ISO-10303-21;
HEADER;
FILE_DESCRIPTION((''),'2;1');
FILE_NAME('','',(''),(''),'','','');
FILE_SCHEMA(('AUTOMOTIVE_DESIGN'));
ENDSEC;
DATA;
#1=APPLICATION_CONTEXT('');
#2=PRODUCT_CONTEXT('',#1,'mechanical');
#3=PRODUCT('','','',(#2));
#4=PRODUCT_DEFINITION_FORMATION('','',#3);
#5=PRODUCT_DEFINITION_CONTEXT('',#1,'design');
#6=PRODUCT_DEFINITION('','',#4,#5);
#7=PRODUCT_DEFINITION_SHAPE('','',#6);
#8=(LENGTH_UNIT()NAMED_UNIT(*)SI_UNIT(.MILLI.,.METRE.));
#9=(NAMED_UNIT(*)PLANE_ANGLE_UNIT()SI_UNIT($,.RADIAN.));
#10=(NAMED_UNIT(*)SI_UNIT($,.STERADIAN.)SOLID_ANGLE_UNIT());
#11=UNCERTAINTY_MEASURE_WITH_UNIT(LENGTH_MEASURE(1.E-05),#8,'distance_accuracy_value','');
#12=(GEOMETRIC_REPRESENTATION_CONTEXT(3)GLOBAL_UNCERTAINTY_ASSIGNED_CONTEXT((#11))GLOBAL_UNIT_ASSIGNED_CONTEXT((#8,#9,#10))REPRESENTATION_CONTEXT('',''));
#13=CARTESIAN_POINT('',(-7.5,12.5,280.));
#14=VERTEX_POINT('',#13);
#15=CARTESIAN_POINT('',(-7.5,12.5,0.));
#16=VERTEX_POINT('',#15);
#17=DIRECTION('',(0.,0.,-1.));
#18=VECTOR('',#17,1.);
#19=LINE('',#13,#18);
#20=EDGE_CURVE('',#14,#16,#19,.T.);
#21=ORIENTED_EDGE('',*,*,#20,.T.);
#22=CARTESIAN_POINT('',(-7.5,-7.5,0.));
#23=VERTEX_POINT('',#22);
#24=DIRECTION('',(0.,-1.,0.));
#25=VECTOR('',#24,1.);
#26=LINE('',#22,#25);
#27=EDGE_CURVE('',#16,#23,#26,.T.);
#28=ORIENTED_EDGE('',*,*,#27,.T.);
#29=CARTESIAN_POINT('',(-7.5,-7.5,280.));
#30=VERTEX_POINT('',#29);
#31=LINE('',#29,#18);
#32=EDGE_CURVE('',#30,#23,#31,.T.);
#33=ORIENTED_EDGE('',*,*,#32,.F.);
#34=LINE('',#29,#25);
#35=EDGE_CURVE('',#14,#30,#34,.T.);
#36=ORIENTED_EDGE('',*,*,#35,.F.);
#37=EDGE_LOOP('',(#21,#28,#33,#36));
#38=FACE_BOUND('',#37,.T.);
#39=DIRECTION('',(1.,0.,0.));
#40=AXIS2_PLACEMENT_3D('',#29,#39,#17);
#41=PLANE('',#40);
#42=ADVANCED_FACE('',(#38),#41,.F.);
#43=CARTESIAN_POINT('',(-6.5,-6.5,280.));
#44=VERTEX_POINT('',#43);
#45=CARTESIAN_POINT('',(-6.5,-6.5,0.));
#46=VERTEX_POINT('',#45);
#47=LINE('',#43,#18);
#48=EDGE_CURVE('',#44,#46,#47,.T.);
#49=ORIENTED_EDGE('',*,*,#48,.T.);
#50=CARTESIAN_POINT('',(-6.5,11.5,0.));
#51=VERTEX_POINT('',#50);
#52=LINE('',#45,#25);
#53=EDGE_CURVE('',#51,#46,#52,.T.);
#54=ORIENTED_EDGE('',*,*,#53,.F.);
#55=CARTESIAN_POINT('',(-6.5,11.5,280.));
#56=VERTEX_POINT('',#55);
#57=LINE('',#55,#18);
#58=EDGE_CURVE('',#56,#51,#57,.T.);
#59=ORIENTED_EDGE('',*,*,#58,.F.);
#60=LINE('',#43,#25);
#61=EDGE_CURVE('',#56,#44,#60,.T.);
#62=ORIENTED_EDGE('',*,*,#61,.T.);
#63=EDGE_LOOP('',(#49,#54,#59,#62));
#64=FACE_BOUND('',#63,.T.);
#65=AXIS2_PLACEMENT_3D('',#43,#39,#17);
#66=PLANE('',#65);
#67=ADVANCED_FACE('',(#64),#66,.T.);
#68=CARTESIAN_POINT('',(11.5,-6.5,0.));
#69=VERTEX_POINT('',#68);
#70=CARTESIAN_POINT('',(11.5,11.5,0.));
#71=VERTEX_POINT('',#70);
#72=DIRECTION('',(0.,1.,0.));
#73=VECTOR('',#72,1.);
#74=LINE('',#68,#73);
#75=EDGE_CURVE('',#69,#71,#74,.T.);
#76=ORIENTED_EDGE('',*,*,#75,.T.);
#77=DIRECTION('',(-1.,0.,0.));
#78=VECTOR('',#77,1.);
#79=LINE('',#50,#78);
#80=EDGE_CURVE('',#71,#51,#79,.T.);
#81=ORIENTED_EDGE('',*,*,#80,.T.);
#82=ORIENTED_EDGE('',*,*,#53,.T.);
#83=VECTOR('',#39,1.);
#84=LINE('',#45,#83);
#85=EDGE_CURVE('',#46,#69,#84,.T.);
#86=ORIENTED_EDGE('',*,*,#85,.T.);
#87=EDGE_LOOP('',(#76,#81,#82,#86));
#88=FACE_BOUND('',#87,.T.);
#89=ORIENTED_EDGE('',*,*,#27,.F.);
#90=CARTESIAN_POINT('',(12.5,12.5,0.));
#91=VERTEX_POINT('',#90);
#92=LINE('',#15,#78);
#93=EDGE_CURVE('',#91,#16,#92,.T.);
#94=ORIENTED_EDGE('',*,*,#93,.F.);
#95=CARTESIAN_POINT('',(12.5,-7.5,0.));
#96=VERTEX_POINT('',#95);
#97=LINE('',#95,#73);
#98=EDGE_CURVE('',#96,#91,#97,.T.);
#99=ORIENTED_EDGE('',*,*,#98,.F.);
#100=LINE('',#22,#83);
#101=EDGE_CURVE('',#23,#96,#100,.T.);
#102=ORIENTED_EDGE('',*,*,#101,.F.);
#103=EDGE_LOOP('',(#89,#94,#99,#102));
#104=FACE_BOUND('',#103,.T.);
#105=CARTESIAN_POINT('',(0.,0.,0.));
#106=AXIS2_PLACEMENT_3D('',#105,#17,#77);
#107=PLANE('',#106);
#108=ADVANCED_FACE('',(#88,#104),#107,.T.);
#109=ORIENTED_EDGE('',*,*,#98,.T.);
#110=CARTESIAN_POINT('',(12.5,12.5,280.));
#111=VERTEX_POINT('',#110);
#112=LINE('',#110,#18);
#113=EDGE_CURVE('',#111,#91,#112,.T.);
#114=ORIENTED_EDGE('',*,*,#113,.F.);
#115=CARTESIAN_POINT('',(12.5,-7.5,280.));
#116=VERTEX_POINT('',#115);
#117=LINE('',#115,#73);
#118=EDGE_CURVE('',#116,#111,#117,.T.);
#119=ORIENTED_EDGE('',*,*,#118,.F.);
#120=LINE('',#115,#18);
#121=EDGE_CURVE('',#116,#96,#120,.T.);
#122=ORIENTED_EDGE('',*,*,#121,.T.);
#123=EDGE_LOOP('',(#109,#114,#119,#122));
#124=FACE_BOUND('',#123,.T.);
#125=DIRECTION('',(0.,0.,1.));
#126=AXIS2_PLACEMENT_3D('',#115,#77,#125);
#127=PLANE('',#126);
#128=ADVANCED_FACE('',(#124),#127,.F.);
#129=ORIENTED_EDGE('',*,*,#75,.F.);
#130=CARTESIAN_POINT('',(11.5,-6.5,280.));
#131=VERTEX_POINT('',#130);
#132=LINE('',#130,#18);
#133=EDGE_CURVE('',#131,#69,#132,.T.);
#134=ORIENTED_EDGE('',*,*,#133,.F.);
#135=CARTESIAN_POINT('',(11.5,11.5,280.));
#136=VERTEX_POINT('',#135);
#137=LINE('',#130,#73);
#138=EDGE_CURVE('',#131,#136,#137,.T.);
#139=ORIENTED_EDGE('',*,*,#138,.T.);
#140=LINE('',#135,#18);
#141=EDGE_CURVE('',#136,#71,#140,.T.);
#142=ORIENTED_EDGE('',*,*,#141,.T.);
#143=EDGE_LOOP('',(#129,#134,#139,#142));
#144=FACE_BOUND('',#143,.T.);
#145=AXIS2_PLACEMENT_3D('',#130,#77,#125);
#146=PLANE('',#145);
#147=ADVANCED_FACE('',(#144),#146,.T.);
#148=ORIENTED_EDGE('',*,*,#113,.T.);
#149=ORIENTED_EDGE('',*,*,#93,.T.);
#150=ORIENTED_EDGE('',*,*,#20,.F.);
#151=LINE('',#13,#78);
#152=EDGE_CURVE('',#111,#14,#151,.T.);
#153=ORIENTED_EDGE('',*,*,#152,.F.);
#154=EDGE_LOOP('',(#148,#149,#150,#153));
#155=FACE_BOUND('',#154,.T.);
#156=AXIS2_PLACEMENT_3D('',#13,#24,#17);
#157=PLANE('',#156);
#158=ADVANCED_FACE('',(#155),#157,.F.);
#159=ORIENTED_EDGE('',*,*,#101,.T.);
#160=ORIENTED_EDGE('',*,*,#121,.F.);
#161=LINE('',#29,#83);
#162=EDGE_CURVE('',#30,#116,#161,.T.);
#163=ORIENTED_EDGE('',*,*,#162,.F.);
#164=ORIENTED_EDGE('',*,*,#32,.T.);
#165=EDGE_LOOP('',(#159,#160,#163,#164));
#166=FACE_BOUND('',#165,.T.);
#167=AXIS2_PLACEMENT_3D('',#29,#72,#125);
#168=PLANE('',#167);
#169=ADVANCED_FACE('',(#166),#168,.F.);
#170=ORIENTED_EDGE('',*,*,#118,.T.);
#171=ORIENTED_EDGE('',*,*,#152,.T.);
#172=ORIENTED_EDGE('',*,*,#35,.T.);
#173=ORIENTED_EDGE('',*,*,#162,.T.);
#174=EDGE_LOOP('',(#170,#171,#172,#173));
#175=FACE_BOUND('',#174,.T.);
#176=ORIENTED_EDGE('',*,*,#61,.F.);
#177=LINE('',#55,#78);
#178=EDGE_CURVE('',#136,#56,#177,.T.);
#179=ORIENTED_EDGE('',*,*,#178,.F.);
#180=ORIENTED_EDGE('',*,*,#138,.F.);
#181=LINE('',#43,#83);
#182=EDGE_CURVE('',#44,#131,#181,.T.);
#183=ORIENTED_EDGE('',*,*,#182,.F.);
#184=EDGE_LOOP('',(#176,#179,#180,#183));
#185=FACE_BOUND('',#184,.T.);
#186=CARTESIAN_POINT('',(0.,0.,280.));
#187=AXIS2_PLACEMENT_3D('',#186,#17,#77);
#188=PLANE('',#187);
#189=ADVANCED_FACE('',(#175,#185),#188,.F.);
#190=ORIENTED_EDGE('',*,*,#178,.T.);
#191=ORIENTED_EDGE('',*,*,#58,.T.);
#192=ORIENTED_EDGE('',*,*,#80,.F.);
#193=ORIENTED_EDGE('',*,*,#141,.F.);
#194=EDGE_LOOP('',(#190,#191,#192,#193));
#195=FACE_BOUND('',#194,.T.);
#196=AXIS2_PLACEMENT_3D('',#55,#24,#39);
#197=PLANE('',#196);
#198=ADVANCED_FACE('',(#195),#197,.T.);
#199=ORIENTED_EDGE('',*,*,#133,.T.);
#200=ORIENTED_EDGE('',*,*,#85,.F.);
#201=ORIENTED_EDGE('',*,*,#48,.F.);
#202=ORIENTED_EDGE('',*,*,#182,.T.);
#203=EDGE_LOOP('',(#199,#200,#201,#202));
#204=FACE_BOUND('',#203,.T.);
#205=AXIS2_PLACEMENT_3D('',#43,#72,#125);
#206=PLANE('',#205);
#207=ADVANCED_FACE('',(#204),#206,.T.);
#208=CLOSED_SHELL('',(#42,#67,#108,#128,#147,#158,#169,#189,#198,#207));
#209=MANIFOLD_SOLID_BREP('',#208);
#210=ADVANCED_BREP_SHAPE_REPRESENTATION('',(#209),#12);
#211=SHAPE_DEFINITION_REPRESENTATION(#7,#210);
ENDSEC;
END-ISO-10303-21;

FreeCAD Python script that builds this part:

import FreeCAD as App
import Part
import Sketcher
from FreeCAD import Vector
Q = App.Units.Quantity

doc = App.newDocument("Part")
body = doc.addObject("PartDesign::Body", "Body")

# Sketch on XY plane
sketch1 = body.newObject("Sketcher::SketchObject", "Sketch")
sketch1.AttachmentSupport = (doc.getObject("XY_Plane"), [""])
sketch1.MapMode = "FlatFace"
sketch1.addGeometry([
    Part.LineSegment(Vector(-8, 12, 0), Vector(-8, -8, 0)),  # 0
    Part.LineSegment(Vector(-8, -8, 0), Vector(12, -8, 0)),  # 1
    Part.LineSegment(Vector(12, -8, 0), Vector(12, 12, 0)),  # 2
    Part.LineSegment(Vector(12, 12, 0), Vector(-8, 12, 0)),  # 3
    Part.LineSegment(Vector(12, -6, 0), Vector(-6, -6, 0)),  # 4
    Part.LineSegment(Vector(-6, -6, 0), Vector(-6, 12, 0)),  # 5
    Part.LineSegment(Vector(-6, 12, 0), Vector(12, 12, 0)),  # 6
    Part.LineSegment(Vector(12, 12, 0), Vector(12, -6, 0)),  # 7
], False)
sketch1.addConstraint([
    Sketcher.Constraint("Coincident", 0, 2, 1, 1),
    Sketcher.Constraint("Coincident", 1, 2, 2, 1),
    Sketcher.Constraint("Coincident", 2, 2, 3, 1),
    Sketcher.Constraint("Coincident", 3, 2, 0, 1),
    Sketcher.Constraint("Coincident", 4, 2, 5, 1),
    Sketcher.Constraint("Coincident", 5, 2, 6, 1),
    Sketcher.Constraint("Coincident", 6, 2, 7, 1),
    Sketcher.Constraint("Coincident", 7, 2, 4, 1),
    Sketcher.Constraint("Vertical", 0),
    Sketcher.Constraint("Horizontal", 1),
    Sketcher.Constraint("Vertical", 2),
    Sketcher.Constraint("Horizontal", 3),
    Sketcher.Constraint("Horizontal", 4),
    Sketcher.Constraint("Vertical", 5),
    Sketcher.Constraint("Horizontal", 6),
    Sketcher.Constraint("Vertical", 7),
    Sketcher.Constraint("Equal", 3, 0),
    Sketcher.Constraint("Equal", 6, 5),
    Sketcher.Constraint("DistanceX", 1, 1, 1, 2, Q("20 mm")),
    Sketcher.Constraint("DistanceX", 4, 2, 4, 1, Q("18 mm")),
    Sketcher.Constraint("DistanceX", 0, 2, 4, 2, Q("1 mm")),
    Sketcher.Constraint("DistanceY", 0, 2, 4, 2, Q("1 mm")),
    Sketcher.Constraint("DistanceX", 0, 2, -1, 1, Q("7.5 mm")),
    Sketcher.Constraint("DistanceY", 0, 2, -1, 1, Q("7.5 mm")),
])
pad1 = body.newObject("PartDesign::Pad", "Pad")
pad1.Profile = sketch1
pad1.Length = 280

doc.recompute()
